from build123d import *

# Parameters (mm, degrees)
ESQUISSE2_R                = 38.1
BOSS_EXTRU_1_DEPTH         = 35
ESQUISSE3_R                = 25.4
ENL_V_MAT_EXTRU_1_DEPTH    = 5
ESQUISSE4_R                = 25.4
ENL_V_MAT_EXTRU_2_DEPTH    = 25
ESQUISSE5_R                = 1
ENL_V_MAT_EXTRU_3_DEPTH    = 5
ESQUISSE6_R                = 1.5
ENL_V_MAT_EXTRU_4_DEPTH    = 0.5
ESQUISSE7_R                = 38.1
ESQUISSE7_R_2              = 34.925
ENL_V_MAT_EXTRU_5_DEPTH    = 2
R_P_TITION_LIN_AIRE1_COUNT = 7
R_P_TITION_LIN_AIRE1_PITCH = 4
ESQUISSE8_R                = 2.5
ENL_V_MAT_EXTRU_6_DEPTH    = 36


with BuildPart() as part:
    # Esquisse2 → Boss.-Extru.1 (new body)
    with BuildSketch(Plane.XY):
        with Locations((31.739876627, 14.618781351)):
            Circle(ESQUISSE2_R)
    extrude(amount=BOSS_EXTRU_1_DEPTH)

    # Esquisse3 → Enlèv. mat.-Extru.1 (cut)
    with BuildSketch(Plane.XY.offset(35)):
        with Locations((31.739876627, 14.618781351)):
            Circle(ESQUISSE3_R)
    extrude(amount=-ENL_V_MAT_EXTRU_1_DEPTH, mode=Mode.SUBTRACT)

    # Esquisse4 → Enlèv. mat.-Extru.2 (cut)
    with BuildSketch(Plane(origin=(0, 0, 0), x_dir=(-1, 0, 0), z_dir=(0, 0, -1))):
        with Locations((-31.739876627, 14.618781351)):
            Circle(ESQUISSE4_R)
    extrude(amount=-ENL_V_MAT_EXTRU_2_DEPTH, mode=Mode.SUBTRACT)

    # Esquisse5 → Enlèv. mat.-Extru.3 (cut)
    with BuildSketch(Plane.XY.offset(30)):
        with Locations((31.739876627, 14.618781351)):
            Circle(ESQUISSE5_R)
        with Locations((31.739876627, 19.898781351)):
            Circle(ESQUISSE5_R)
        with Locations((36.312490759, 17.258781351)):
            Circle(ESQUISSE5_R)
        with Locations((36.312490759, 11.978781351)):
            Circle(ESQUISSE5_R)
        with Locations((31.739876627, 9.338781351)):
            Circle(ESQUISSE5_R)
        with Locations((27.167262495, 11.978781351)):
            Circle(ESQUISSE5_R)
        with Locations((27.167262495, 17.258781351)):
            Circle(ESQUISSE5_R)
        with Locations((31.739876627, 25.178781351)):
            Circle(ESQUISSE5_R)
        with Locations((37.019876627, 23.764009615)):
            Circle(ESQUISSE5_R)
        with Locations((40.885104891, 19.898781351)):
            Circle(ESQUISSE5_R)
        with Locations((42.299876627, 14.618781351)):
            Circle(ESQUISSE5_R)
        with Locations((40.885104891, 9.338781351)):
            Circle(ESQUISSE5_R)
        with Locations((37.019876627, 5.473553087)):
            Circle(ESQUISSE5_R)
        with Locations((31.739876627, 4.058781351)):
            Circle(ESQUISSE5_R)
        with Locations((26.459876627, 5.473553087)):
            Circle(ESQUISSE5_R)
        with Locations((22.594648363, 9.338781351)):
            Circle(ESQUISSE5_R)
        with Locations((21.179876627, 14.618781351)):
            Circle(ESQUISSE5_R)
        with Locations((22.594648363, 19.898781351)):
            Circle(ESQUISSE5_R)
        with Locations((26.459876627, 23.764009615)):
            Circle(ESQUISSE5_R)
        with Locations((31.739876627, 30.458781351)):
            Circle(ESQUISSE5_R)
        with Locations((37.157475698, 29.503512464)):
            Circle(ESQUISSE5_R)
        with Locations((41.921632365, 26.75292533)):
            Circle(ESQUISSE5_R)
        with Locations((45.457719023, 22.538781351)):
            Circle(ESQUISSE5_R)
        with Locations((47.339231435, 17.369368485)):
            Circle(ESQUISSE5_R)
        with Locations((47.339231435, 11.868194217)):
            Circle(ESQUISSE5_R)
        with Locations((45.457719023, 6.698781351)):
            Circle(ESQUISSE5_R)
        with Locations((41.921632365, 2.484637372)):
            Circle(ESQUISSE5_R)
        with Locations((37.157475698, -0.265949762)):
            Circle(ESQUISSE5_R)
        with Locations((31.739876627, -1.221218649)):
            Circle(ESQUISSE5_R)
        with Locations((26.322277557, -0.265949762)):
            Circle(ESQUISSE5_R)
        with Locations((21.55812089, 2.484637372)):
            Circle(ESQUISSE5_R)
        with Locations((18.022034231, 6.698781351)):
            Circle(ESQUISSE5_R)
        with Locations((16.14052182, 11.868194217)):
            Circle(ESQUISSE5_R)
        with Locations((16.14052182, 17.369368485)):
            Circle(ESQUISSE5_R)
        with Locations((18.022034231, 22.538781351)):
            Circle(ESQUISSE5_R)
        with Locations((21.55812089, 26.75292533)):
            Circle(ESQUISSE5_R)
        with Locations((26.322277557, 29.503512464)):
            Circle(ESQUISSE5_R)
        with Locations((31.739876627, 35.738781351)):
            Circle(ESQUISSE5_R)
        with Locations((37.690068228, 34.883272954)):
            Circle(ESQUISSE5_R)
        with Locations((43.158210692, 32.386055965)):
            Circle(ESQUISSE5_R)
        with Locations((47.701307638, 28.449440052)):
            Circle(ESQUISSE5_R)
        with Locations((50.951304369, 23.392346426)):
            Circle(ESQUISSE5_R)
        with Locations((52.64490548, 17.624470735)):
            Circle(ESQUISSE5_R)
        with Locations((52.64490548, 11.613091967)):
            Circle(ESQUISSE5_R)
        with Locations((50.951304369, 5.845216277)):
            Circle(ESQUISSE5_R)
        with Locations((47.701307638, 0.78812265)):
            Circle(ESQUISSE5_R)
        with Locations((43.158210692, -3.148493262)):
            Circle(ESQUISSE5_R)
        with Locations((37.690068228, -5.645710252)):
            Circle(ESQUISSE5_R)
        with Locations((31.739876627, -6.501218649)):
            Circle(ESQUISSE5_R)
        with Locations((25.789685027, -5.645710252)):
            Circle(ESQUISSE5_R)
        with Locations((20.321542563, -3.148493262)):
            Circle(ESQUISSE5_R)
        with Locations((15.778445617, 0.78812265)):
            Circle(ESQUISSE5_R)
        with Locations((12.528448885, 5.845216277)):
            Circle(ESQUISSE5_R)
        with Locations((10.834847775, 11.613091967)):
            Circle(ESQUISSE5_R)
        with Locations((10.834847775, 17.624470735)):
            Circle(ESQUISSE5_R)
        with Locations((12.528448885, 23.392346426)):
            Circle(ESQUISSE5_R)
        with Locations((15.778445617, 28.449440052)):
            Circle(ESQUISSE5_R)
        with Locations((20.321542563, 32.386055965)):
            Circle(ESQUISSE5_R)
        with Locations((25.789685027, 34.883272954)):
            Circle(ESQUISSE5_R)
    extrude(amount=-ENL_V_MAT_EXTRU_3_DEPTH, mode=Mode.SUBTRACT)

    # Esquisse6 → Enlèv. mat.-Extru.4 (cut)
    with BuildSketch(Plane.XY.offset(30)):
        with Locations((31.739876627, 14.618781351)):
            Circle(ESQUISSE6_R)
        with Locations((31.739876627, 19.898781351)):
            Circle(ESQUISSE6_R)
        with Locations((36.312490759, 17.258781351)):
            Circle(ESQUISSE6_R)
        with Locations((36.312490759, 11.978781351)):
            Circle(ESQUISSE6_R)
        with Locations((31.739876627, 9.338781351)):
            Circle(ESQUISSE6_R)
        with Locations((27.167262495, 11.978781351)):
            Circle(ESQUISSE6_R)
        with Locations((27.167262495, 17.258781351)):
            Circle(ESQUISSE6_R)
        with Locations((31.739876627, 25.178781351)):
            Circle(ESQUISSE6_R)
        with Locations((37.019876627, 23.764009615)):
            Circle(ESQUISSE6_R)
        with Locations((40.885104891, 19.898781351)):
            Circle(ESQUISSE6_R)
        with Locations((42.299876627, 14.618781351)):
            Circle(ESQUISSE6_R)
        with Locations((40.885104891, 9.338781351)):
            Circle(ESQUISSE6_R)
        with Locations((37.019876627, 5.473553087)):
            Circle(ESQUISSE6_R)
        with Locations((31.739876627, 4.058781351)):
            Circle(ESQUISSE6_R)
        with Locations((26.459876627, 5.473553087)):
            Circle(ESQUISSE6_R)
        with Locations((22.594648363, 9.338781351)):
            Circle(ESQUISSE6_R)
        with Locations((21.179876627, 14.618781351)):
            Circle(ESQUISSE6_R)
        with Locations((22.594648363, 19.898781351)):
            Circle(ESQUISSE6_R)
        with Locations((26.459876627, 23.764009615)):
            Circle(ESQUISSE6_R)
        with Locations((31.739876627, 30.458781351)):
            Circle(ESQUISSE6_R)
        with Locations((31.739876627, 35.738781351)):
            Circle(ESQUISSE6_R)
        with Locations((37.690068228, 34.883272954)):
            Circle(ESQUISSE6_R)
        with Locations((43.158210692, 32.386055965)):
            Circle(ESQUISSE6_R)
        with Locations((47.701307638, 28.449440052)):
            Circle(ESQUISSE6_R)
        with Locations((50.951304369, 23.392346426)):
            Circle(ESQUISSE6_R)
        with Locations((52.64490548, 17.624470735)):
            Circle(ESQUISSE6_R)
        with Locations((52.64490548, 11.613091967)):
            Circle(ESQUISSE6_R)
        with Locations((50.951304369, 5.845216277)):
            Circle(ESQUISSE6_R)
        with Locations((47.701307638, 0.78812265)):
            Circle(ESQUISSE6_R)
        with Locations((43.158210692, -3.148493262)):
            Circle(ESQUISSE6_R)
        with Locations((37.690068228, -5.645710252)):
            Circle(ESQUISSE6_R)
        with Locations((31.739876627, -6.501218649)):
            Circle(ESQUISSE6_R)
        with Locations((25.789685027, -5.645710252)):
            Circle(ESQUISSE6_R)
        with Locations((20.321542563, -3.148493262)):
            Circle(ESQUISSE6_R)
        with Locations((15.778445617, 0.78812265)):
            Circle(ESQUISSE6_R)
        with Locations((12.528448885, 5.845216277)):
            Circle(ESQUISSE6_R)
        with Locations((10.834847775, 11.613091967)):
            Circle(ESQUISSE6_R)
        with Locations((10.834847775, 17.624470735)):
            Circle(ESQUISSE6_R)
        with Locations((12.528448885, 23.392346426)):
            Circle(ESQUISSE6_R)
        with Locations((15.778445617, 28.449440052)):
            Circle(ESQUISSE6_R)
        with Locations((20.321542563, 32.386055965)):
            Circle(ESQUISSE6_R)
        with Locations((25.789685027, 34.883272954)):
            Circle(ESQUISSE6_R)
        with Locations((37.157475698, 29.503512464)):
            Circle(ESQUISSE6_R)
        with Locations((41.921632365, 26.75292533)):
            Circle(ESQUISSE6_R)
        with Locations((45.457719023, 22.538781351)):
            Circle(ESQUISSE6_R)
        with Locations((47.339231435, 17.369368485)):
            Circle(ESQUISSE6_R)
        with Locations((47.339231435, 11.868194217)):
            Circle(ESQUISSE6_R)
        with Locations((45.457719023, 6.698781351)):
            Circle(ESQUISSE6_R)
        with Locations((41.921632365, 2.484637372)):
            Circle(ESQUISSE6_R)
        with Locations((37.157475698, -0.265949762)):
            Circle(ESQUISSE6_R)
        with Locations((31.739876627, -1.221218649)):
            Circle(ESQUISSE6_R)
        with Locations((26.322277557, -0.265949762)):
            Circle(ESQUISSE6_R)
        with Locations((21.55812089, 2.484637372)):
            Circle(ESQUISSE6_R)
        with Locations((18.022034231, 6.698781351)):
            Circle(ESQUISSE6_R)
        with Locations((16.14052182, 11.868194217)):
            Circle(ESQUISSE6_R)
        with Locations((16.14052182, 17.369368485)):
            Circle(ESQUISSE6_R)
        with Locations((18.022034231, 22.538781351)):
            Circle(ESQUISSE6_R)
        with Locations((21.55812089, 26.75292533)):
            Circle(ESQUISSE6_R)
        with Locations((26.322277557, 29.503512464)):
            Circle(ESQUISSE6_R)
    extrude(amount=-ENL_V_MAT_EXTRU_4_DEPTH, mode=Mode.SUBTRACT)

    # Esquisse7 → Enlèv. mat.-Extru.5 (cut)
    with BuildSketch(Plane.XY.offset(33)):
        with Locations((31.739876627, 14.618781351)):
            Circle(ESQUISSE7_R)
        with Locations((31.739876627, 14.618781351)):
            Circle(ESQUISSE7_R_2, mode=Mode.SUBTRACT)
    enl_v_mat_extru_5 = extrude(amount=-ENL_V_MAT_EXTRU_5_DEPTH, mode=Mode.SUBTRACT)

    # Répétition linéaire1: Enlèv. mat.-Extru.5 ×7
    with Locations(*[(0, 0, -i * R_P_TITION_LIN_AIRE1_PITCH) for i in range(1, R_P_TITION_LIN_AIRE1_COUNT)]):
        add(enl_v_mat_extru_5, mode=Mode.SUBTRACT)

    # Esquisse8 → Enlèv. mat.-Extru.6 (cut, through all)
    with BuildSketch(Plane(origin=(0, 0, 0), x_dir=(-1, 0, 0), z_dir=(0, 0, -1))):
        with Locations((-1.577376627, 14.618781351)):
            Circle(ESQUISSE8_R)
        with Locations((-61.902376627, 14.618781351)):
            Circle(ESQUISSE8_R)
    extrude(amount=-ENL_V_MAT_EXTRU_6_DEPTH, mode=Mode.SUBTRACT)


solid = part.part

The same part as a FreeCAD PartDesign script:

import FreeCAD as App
import Part
import Sketcher

V = App.Vector
Q = App.Units.Quantity

doc = App.newDocument("Part")
body = doc.addObject("PartDesign::Body", "Body")

sketch1 = doc.addObject("Sketcher::SketchObject", "Sketch")
body.addObject(sketch1)
sketch1.AttachmentSupport = (doc.XY_Plane, [""])
sketch1.MapMode = "FlatFace"
sketch1.addGeometry(Part.Circle(V(31.739877, 14.618781, 0), V(0, 0, 1), 38.1), False)
sketch1.addConstraint([
    Sketcher.Constraint("Diameter", 0, Q("76.2 mm")),
    Sketcher.Constraint("DistanceY", -1, 1, 0, 3, Q("14.618781 mm")),
    Sketcher.Constraint("DistanceX", -1, 1, 0, 3, Q("31.739877 mm")),
])
pad1 = doc.addObject("PartDesign::Pad", "Pad")
body.addObject(pad1)
pad1.Profile = sketch1
pad1.Length = 35

sketch2 = doc.addObject("Sketcher::SketchObject", "Sketch001")
body.addObject(sketch2)
sketch2.AttachmentSupport = (doc.XY_Plane, [""])
sketch2.MapMode = "FlatFace"
sketch2.AttachmentOffset = App.Placement(V(0, 0, 35), App.Rotation())
sketch2.addGeometry(Part.Circle(V(31.739877, 14.618781, 0), V(0, 0, 1), 25.4), False)
sketch2.addConstraint([
    Sketcher.Constraint("Diameter", 0, Q("50.8 mm")),
    Sketcher.Constraint("DistanceY", -1, 1, 0, 3, Q("14.618781 mm")),
    Sketcher.Constraint("DistanceX", -1, 1, 0, 3, Q("31.739877 mm")),
])
pocket1 = doc.addObject("PartDesign::Pocket", "Pocket")
body.addObject(pocket1)
pocket1.Profile = sketch2
pocket1.Length = 5

sketch3 = doc.addObject("Sketcher::SketchObject", "Sketch002")
body.addObject(sketch3)
sketch3.AttachmentSupport = (doc.XY_Plane, [""])
sketch3.MapMode = "FlatFace"
sketch3.addGeometry(Part.Circle(V(31.739877, 14.618781, 0), V(0, 0, 1), 25.4), False)
sketch3.addConstraint([
    Sketcher.Constraint("Diameter", 0, Q("50.8 mm")),
    Sketcher.Constraint("DistanceY", -1, 1, 0, 3, Q("14.618781 mm")),
    Sketcher.Constraint("DistanceX", -1, 1, 0, 3, Q("31.739877 mm")),
])
pocket2 = doc.addObject("PartDesign::Pocket", "Pocket001")
body.addObject(pocket2)
pocket2.Profile = sketch3
pocket2.Length = 25
pocket2.Reversed = True

sketch4 = doc.addObject("Sketcher::SketchObject", "Sketch003")
body.addObject(sketch4)
sketch4.AttachmentSupport = (doc.XY_Plane, [""])
sketch4.MapMode = "FlatFace"
sketch4.AttachmentOffset = App.Placement(V(0, 0, 30), App.Rotation())
sketch4.addGeometry([
    Part.Circle(V(31.739877, 14.618781, 0), V(0, 0, 1), 1),
    Part.Circle(V(31.739877, 19.898781, 0), V(0, 0, 1), 1),
    Part.Circle(V(36.312491, 17.258781, 0), V(0, 0, 1), 1),
    Part.Circle(V(36.312491, 11.978781, 0), V(0, 0, 1), 1),
    Part.Circle(V(31.739877, 9.338781, 0), V(0, 0, 1), 1),
    Part.Circle(V(27.167262, 11.978781, 0), V(0, 0, 1), 1),
    Part.Circle(V(27.167262, 17.258781, 0), V(0, 0, 1), 1),
    Part.Circle(V(31.739877, 25.178781, 0), V(0, 0, 1), 1),
    Part.Circle(V(37.019877, 23.76401, 0), V(0, 0, 1), 1),
    Part.Circle(V(40.885105, 19.898781, 0), V(0, 0, 1), 1),
    Part.Circle(V(42.299877, 14.618781, 0), V(0, 0, 1), 1),
    Part.Circle(V(40.885105, 9.338781, 0), V(0, 0, 1), 1),
    Part.Circle(V(37.019877, 5.473553, 0), V(0, 0, 1), 1),
    Part.Circle(V(31.739877, 4.058781, 0), V(0, 0, 1), 1),
    Part.Circle(V(26.459877, 5.473553, 0), V(0, 0, 1), 1),
    Part.Circle(V(22.594648, 9.338781, 0), V(0, 0, 1), 1),
    Part.Circle(V(21.179877, 14.618781, 0), V(0, 0, 1), 1),
    Part.Circle(V(22.594648, 19.898781, 0), V(0, 0, 1), 1),
    Part.Circle(V(26.459877, 23.76401, 0), V(0, 0, 1), 1),
    Part.Circle(V(31.739877, 30.458781, 0), V(0, 0, 1), 1),
    Part.Circle(V(37.157476, 29.503512, 0), V(0, 0, 1), 1),
    Part.Circle(V(41.921632, 26.752925, 0), V(0, 0, 1), 1),
    Part.Circle(V(45.457719, 22.538781, 0), V(0, 0, 1), 1),
    Part.Circle(V(47.339231, 17.369368, 0), V(0, 0, 1), 1),
    Part.Circle(V(47.339231, 11.868194, 0), V(0, 0, 1), 1),
    Part.Circle(V(45.457719, 6.698781, 0), V(0, 0, 1), 1),
    Part.Circle(V(41.921632, 2.484637, 0), V(0, 0, 1), 1),
    Part.Circle(V(37.157476, -0.26595, 0), V(0, 0, 1), 1),
    Part.Circle(V(31.739877, -1.221219, 0), V(0, 0, 1), 1),
    Part.Circle(V(26.322278, -0.26595, 0), V(0, 0, 1), 1),
    Part.Circle(V(21.558121, 2.484637, 0), V(0, 0, 1), 1),
    Part.Circle(V(18.022034, 6.698781, 0), V(0, 0, 1), 1),
    Part.Circle(V(16.140522, 11.868194, 0), V(0, 0, 1), 1),
    Part.Circle(V(16.140522, 17.369368, 0), V(0, 0, 1), 1),
    Part.Circle(V(18.022034, 22.538781, 0), V(0, 0, 1), 1),
    Part.Circle(V(21.558121, 26.752925, 0), V(0, 0, 1), 1),
    Part.Circle(V(26.322278, 29.503512, 0), V(0, 0, 1), 1),
    Part.Circle(V(31.739877, 35.738781, 0), V(0, 0, 1), 1),
    Part.Circle(V(37.690068, 34.883273, 0), V(0, 0, 1), 1),
    Part.Circle(V(43.158211, 32.386056, 0), V(0, 0, 1), 1),
    Part.Circle(V(47.701308, 28.44944, 0), V(0, 0, 1), 1),
    Part.Circle(V(50.951304, 23.392346, 0), V(0, 0, 1), 1),
    Part.Circle(V(52.644905, 17.624471, 0), V(0, 0, 1), 1),
    Part.Circle(V(52.644905, 11.613092, 0), V(0, 0, 1), 1),
    Part.Circle(V(50.951304, 5.845216, 0), V(0, 0, 1), 1),
    Part.Circle(V(47.701308, 0.788123, 0), V(0, 0, 1), 1),
    Part.Circle(V(43.158211, -3.148493, 0), V(0, 0, 1), 1),
    Part.Circle(V(37.690068, -5.64571, 0), V(0, 0, 1), 1),
    Part.Circle(V(31.739877, -6.501219, 0), V(0, 0, 1), 1),
    Part.Circle(V(25.789685, -5.64571, 0), V(0, 0, 1), 1),
    Part.Circle(V(20.321543, -3.148493, 0), V(0, 0, 1), 1),
    Part.Circle(V(15.778446, 0.788123, 0), V(0, 0, 1), 1),
    Part.Circle(V(12.528449, 5.845216, 0), V(0, 0, 1), 1),
    Part.Circle(V(10.834848, 11.613092, 0), V(0, 0, 1), 1),
    Part.Circle(V(10.834848, 17.624471, 0), V(0, 0, 1), 1),
    Part.Circle(V(12.528449, 23.392346, 0), V(0, 0, 1), 1),
    Part.Circle(V(15.778446, 28.44944, 0), V(0, 0, 1), 1),
    Part.Circle(V(20.321543, 32.386056, 0), V(0, 0, 1), 1),
    Part.Circle(V(25.789685, 34.883273, 0), V(0, 0, 1), 1),
], False)
sketch4.addConstraint([
    Sketcher.Constraint("Equal", 0, 1),
    Sketcher.Constraint("Equal", 1, 2),
    Sketcher.Constraint("Equal", 2, 3),
    Sketcher.Constraint("Equal", 3, 4),
    Sketcher.Constraint("Equal", 4, 5),
    Sketcher.Constraint("Equal", 5, 6),
    Sketcher.Constraint("Equal", 6, 7),
    Sketcher.Constraint("Equal", 7, 8),
    Sketcher.Constraint("Equal", 8, 9),
    Sketcher.Constraint("Equal", 9, 10),
    Sketcher.Constraint("Equal", 10, 11),
    Sketcher.Constraint("Equal", 11, 12),
    Sketcher.Constraint("Equal", 12, 13),
    Sketcher.Constraint("Equal", 13, 14),
    Sketcher.Constraint("Equal", 14, 15),
    Sketcher.Constraint("Equal", 15, 16),
    Sketcher.Constraint("Equal", 16, 17),
    Sketcher.Constraint("Equal", 17, 18),
    Sketcher.Constraint("Equal", 18, 19),
    Sketcher.Constraint("Equal", 19, 20),
    Sketcher.Constraint("Equal", 20, 21),
    Sketcher.Constraint("Equal", 21, 22),
    Sketcher.Constraint("Equal", 22, 23),
    Sketcher.Constraint("Equal", 23, 24),
    Sketcher.Constraint("Equal", 24, 25),
    Sketcher.Constraint("Equal", 25, 26),
    Sketcher.Constraint("Equal", 26, 27),
    Sketcher.Constraint("Equal", 27, 28),
    Sketcher.Constraint("Equal", 28, 29),
    Sketcher.Constraint("Equal", 29, 30),
    Sketcher.Constraint("Equal", 30, 31),
    Sketcher.Constraint("Equal", 31, 32),
    Sketcher.Constraint("Equal", 32, 33),
    Sketcher.Constraint("Equal", 33, 34),
    Sketcher.Constraint("Equal", 34, 35),
    Sketcher.Constraint("Equal", 35, 36),
    Sketcher.Constraint("Equal", 36, 37),
    Sketcher.Constraint("Equal", 37, 38),
    Sketcher.Constraint("Equal", 38, 39),
    Sketcher.Constraint("Equal", 39, 40),
    Sketcher.Constraint("Equal", 40, 41),
    Sketcher.Constraint("Equal", 41, 42),
    Sketcher.Constraint("Equal", 42, 43),
    Sketcher.Constraint("Equal", 43, 44),
    Sketcher.Constraint("Equal", 44, 45),
    Sketcher.Constraint("Equal", 45, 46),
    Sketcher.Constraint("Equal", 46, 47),
    Sketcher.Constraint("Equal", 47, 48),
    Sketcher.Constraint("Equal", 48, 49),
    Sketcher.Constraint("Equal", 49, 50),
    Sketcher.Constraint("Equal", 50, 51),
    Sketcher.Constraint("Equal", 51, 52),
    Sketcher.Constraint("Equal", 52, 53),
    Sketcher.Constraint("Equal", 53, 54),
    Sketcher.Constraint("Equal", 54, 55),
    Sketcher.Constraint("Equal", 55, 56),
    Sketcher.Constraint("Equal", 56, 57),
    Sketcher.Constraint("Equal", 57, 58),
    Sketcher.Constraint("Horizontal", 3, 3, 5, 3),
    Sketcher.Constraint("Horizontal", 2, 3, 6, 3),
    Sketcher.Constraint("Horizontal", 1, 3, 9, 3),
    Sketcher.Constraint("Horizontal", 0, 3, 10, 3),
    Sketcher.Constraint("Horizontal", 4, 3, 11, 3),
    Sketcher.Constraint("Horizontal", 12, 3, 14, 3),
    Sketcher.Constraint("Horizontal", 11, 3, 15, 3),
    Sketcher.Constraint("Horizontal", 10, 3, 16, 3),
    Sketcher.Constraint("Horizontal", 9, 3, 17, 3),
    Sketcher.Constraint("Horizontal", 8, 3, 18, 3),
    Sketcher.Constraint("Horizontal", 27, 3, 29, 3),
    Sketcher.Constraint("Horizontal", 26, 3, 30, 3),
    Sketcher.Constraint("Horizontal", 25, 3, 31, 3),
    Sketcher.Constraint("Horizontal", 24, 3, 32, 3),
    Sketcher.Constraint("Horizontal", 23, 3, 33, 3),
    Sketcher.Constraint("Horizontal", 22, 3, 34, 3),
    Sketcher.Constraint("Horizontal", 21, 3, 35, 3),
    Sketcher.Constraint("Horizontal", 20, 3, 36, 3),
    Sketcher.Constraint("Horizontal", 47, 3, 49, 3),
    Sketcher.Constraint("Horizontal", 46, 3, 50, 3),
    Sketcher.Constraint("Horizontal", 45, 3, 51, 3),
    Sketcher.Constraint("Horizontal", 44, 3, 52, 3),
    Sketcher.Constraint("Horizontal", 43, 3, 53, 3),
    Sketcher.Constraint("Horizontal", 42, 3, 54, 3),
    Sketcher.Constraint("Horizontal", 41, 3, 55, 3),
    Sketcher.Constraint("Horizontal", 40, 3, 56, 3),
    Sketcher.Constraint("Horizontal", 39, 3, 57, 3),
    Sketcher.Constraint("Horizontal", 38, 3, 58, 3),
    Sketcher.Constraint("Vertical", 0, 3, 1, 3),
    Sketcher.Constraint("Vertical", 2, 3, 3, 3),
    Sketcher.Constraint("Vertical", 1, 3, 4, 3),
    Sketcher.Constraint("Vertical", 5, 3, 6, 3),
    Sketcher.Constraint("Vertical", 4, 3, 7, 3),
    Sketcher.Constraint("Vertical", 9, 3, 11, 3),
    Sketcher.Constraint("Vertical", 8, 3, 12, 3),
    Sketcher.Constraint("Vertical", 7, 3, 13, 3),
    Sketcher.Constraint("Vertical", 15, 3, 17, 3),
    Sketcher.Constraint("Vertical", 14, 3, 18, 3),
    Sketcher.Constraint("Vertical", 13, 3, 19, 3),
    Sketcher.Constraint("Vertical", 23, 3, 24, 3),
    Sketcher.Constraint("Vertical", 22, 3, 25, 3),
    Sketcher.Constraint("Vertical", 21, 3, 26, 3),
    Sketcher.Constraint("Vertical", 20, 3, 27, 3),
    Sketcher.Constraint("Vertical", 19, 3, 28, 3),
    Sketcher.Constraint("Vertical", 32, 3, 33, 3),
    Sketcher.Constraint("Vertical", 31, 3, 34, 3),
    Sketcher.Constraint("Vertical", 30, 3, 35, 3),
    Sketcher.Constraint("Vertical", 29, 3, 36, 3),
    Sketcher.Constraint("Vertical", 28, 3, 37, 3),
    Sketcher.Constraint("Vertical", 42, 3, 43, 3),
    Sketcher.Constraint("Vertical", 41, 3, 44, 3),
    Sketcher.Constraint("Vertical", 40, 3, 45, 3),
    Sketcher.Constraint("Vertical", 39, 3, 46, 3),
    Sketcher.Constraint("Vertical", 38, 3, 47, 3),
    Sketcher.Constraint("Vertical", 37, 3, 48, 3),
    Sketcher.Constraint("Vertical", 53, 3, 54, 3),
    Sketcher.Constraint("Vertical", 52, 3, 55, 3),
    Sketcher.Constraint("Vertical", 51, 3, 56, 3),
    Sketcher.Constraint("Vertical", 50, 3, 57, 3),
    Sketcher.Constraint("Vertical", 49, 3, 58, 3),
    Sketcher.Constraint("Diameter", 0, Q("2 mm")),
    Sketcher.Constraint("DistanceY", 3, 3, 7, 3, Q("13.2 mm")),
    Sketcher.Constraint("DistanceY", 2, 3, 19, 3, Q("13.2 mm")),
    Sketcher.Constraint("DistanceY", 0, 3, 1, 3, Q("5.28 mm")),
    Sketcher.Constraint("DistanceY", 0, 3, 2, 3, Q("2.64 mm")),
    Sketcher.Constraint("DistanceY", 3, 3, 2, 3, Q("5.28 mm")),
    Sketcher.Constraint("DistanceY", 4, 3, 0, 3, Q("5.28 mm")),
    Sketcher.Constraint("DistanceX", 7, 3, 8, 3, Q("5.28 mm")),
    Sketcher.Constraint("DistanceX", 0, 3, 10, 3, Q("10.56 mm")),
    Sketcher.Constraint("DistanceY", 13, 3, 4, 3, Q("5.28 mm")),
    Sketcher.Constraint("DistanceX", 14, 3, 13, 3, Q("5.28 mm")),
    Sketcher.Constraint("DistanceX", 16, 3, 0, 3, Q("10.56 mm")),
    Sketcher.Constraint("DistanceY", 9, 3, 22, 3, Q("2.64 mm")),
    Sketcher.Constraint("DistanceY", 25, 3, 11, 3, Q("2.64 mm")),
    Sketcher.Constraint("DistanceY", 28, 3, 13, 3, Q("5.28 mm")),
    Sketcher.Constraint("DistanceY", 19, 3, 37, 3, Q("5.28 mm")),
    Sketcher.Constraint("DistanceY", 48, 3, 28, 3, Q("5.28 mm")),
    Sketcher.Constraint("DistanceX", 19, 3, 20, 3, Q("5.417599 mm")),
    Sketcher.Constraint("DistanceX", 21, 3, 23, 3, Q("5.417599 mm")),
    Sketcher.Constraint("DistanceX", 29, 3, 28, 3, Q("5.417599 mm")),
    Sketcher.Constraint("DistanceX", 32, 3, 30, 3, Q("5.417599 mm")),
    Sketcher.Constraint("DistanceX", 9, 3, 41, 3, Q("10.066199 mm")),
    Sketcher.Constraint("DistanceX", 41, 3, 42, 3, Q("1.693601 mm")),
    Sketcher.Constraint("DistanceX", 52, 3, 15, 3, Q("10.066199 mm")),
    Sketcher.Constraint("DistanceX", 53, 3, 52, 3, Q("1.693601 mm")),
    Sketcher.Constraint("DistanceY", -1, 1, 0, 3, Q("14.618781 mm")),
    Sketcher.Constraint("DistanceX", -1, 1, 2, 3, Q("36.312491 mm")),
    Sketcher.Constraint("DistanceY", -1, 1, 8, 3, Q("23.76401 mm")),
    Sketcher.Constraint("DistanceX", -1, 1, 15, 3, Q("22.594648 mm")),
    Sketcher.Constraint("DistanceX", -1, 1, 22, 3, Q("45.457719 mm")),
    Sketcher.Constraint("DistanceX", -1, 1, 23, 3, Q("47.339231 mm")),
    Sketcher.Constraint("DistanceY", -1, 1, 23, 3, Q("17.369368 mm")),
    Sketcher.Constraint("DistanceY", 27, 3, -1, 1, Q("0.26595 mm")),
    Sketcher.Constraint("DistanceX", -1, 1, 30, 3, Q("21.558121 mm")),
    Sketcher.Constraint("DistanceX", -1, 1, 38, 3, Q("37.690068 mm")),
    Sketcher.Constraint("DistanceX", -1, 1, 39, 3, Q("43.158211 mm")),
    Sketcher.Constraint("DistanceY", -1, 1, 40, 3, Q("28.44944 mm")),
    Sketcher.Constraint("DistanceY", -1, 1, 42, 3, Q("17.624471 mm")),
    Sketcher.Constraint("DistanceY", -1, 1, 43, 3, Q("11.613092 mm")),
    Sketcher.Constraint("DistanceY", 47, 3, -1, 1, Q("5.64571 mm")),
    Sketcher.Constraint("DistanceX", 5, 3, 3, 3, Q("9.145228 mm")),
    Sketcher.Constraint("DistanceX", 8, 3, 9, 3, Q("3.865228 mm")),
    Sketcher.Constraint("DistanceY", 12, 3, 11, 3, Q("3.865228 mm")),
    Sketcher.Constraint("DistanceX", 15, 3, 14, 3, Q("3.865228 mm")),
    Sketcher.Constraint("DistanceY", 20, 3, 19, 3, Q("0.955269 mm")),
    Sketcher.Constraint("DistanceX", 31, 3, 5, 3, Q("9.145228 mm")),
    Sketcher.Constraint("DistanceY", 20, 3, 38, 3, Q("5.37976 mm")),
    Sketcher.Constraint("DistanceY", 21, 3, 39, 3, Q("5.633131 mm")),
    Sketcher.Constraint("DistanceX", 22, 3, 40, 3, Q("2.243589 mm")),
    Sketcher.Constraint("DistanceY", 41, 3, 21, 3, Q("3.360579 mm")),
    Sketcher.Constraint("DistanceY", 26, 3, 44, 3, Q("3.360579 mm")),
    Sketcher.Constraint("DistanceY", 45, 3, 25, 3, Q("5.910659 mm")),
    Sketcher.Constraint("DistanceY", 46, 3, 26, 3, Q("5.633131 mm")),
    Sketcher.Constraint("DistanceX", 49, 3, 48, 3, Q("5.950192 mm")),
    Sketcher.Constraint("DistanceX", 50, 3, 30, 3, Q("1.236578 mm")),
    Sketcher.Constraint("DistanceX", 51, 3, 31, 3, Q("2.243589 mm")),
    Sketcher.Constraint("DistanceY", -1, 1, 21, 3, Q("26.752925 mm")),
    Sketcher.Constraint("DistanceY", -1, 1, 24, 3, Q("11.868194 mm")),
    Sketcher.Constraint("DistanceY", -1, 1, 26, 3, Q("2.484637 mm")),
])
pocket3 = doc.addObject("PartDesign::Pocket", "Pocket002")
body.addObject(pocket3)
pocket3.Profile = sketch4
pocket3.Length = 5

sketch5 = doc.addObject("Sketcher::SketchObject", "Sketch004")
body.addObject(sketch5)
sketch5.AttachmentSupport = (doc.XY_Plane, [""])
sketch5.MapMode = "FlatFace"
sketch5.AttachmentOffset = App.Placement(V(0, 0, 30), App.Rotation())
sketch5.addGeometry([
    Part.Circle(V(31.739877, 14.618781, 0), V(0, 0, 1), 1.5),
    Part.Circle(V(31.739877, 19.898781, 0), V(0, 0, 1), 1.5),
    Part.Circle(V(36.312491, 17.258781, 0), V(0, 0, 1), 1.5),
    Part.Circle(V(36.312491, 11.978781, 0), V(0, 0, 1), 1.5),
    Part.Circle(V(31.739877, 9.338781, 0), V(0, 0, 1), 1.5),
    Part.Circle(V(27.167262, 11.978781, 0), V(0, 0, 1), 1.5),
    Part.Circle(V(27.167262, 17.258781, 0), V(0, 0, 1), 1.5),
    Part.Circle(V(31.739877, 25.178781, 0), V(0, 0, 1), 1.5),
    Part.Circle(V(37.019877, 23.76401, 0), V(0, 0, 1), 1.5),
    Part.Circle(V(40.885105, 19.898781, 0), V(0, 0, 1), 1.5),
    Part.Circle(V(42.299877, 14.618781, 0), V(0, 0, 1), 1.5),
    Part.Circle(V(40.885105, 9.338781, 0), V(0, 0, 1), 1.5),
    Part.Circle(V(37.019877, 5.473553, 0), V(0, 0, 1), 1.5),
    Part.Circle(V(31.739877, 4.058781, 0), V(0, 0, 1), 1.5),
    Part.Circle(V(26.459877, 5.473553, 0), V(0, 0, 1), 1.5),
    Part.Circle(V(22.594648, 9.338781, 0), V(0, 0, 1), 1.5),
    Part.Circle(V(21.179877, 14.618781, 0), V(0, 0, 1), 1.5),
    Part.Circle(V(22.594648, 19.898781, 0), V(0, 0, 1), 1.5),
    Part.Circle(V(26.459877, 23.76401, 0), V(0, 0, 1), 1.5),
    Part.Circle(V(31.739877, 30.458781, 0), V(0, 0, 1), 1.5),
    Part.Circle(V(31.739877, 35.738781, 0), V(0, 0, 1), 1.5),
    Part.Circle(V(37.690068, 34.883273, 0), V(0, 0, 1), 1.5),
    Part.Circle(V(43.158211, 32.386056, 0), V(0, 0, 1), 1.5),
    Part.Circle(V(47.701308, 28.44944, 0), V(0, 0, 1), 1.5),
    Part.Circle(V(50.951304, 23.392346, 0), V(0, 0, 1), 1.5),
    Part.Circle(V(52.644905, 17.624471, 0), V(0, 0, 1), 1.5),
    Part.Circle(V(52.644905, 11.613092, 0), V(0, 0, 1), 1.5),
    Part.Circle(V(50.951304, 5.845216, 0), V(0, 0, 1), 1.5),
    Part.Circle(V(47.701308, 0.788123, 0), V(0, 0, 1), 1.5),
    Part.Circle(V(43.158211, -3.148493, 0), V(0, 0, 1), 1.5),
    Part.Circle(V(37.690068, -5.64571, 0), V(0, 0, 1), 1.5),
    Part.Circle(V(31.739877, -6.501219, 0), V(0, 0, 1), 1.5),
    Part.Circle(V(25.789685, -5.64571, 0), V(0, 0, 1), 1.5),
    Part.Circle(V(20.321543, -3.148493, 0), V(0, 0, 1), 1.5),
    Part.Circle(V(15.778446, 0.788123, 0), V(0, 0, 1), 1.5),
    Part.Circle(V(12.528449, 5.845216, 0), V(0, 0, 1), 1.5),
    Part.Circle(V(10.834848, 11.613092, 0), V(0, 0, 1), 1.5),
    Part.Circle(V(10.834848, 17.624471, 0), V(0, 0, 1), 1.5),
    Part.Circle(V(12.528449, 23.392346, 0), V(0, 0, 1), 1.5),
    Part.Circle(V(15.778446, 28.44944, 0), V(0, 0, 1), 1.5),
    Part.Circle(V(20.321543, 32.386056, 0), V(0, 0, 1), 1.5),
    Part.Circle(V(25.789685, 34.883273, 0), V(0, 0, 1), 1.5),
    Part.Circle(V(37.157476, 29.503512, 0), V(0, 0, 1), 1.5),
    Part.Circle(V(41.921632, 26.752925, 0), V(0, 0, 1), 1.5),
    Part.Circle(V(45.457719, 22.538781, 0), V(0, 0, 1), 1.5),
    Part.Circle(V(47.339231, 17.369368, 0), V(0, 0, 1), 1.5),
    Part.Circle(V(47.339231, 11.868194, 0), V(0, 0, 1), 1.5),
    Part.Circle(V(45.457719, 6.698781, 0), V(0, 0, 1), 1.5),
    Part.Circle(V(41.921632, 2.484637, 0), V(0, 0, 1), 1.5),
    Part.Circle(V(37.157476, -0.26595, 0), V(0, 0, 1), 1.5),
    Part.Circle(V(31.739877, -1.221219, 0), V(0, 0, 1), 1.5),
    Part.Circle(V(26.322278, -0.26595, 0), V(0, 0, 1), 1.5),
    Part.Circle(V(21.558121, 2.484637, 0), V(0, 0, 1), 1.5),
    Part.Circle(V(18.022034, 6.698781, 0), V(0, 0, 1), 1.5),
    Part.Circle(V(16.140522, 11.868194, 0), V(0, 0, 1), 1.5),
    Part.Circle(V(16.140522, 17.369368, 0), V(0, 0, 1), 1.5),
    Part.Circle(V(18.022034, 22.538781, 0), V(0, 0, 1), 1.5),
    Part.Circle(V(21.558121, 26.752925, 0), V(0, 0, 1), 1.5),
    Part.Circle(V(26.322278, 29.503512, 0), V(0, 0, 1), 1.5),
], False)
sketch5.addConstraint([
    Sketcher.Constraint("Equal", 0, 1),
    Sketcher.Constraint("Equal", 1, 2),
    Sketcher.Constraint("Equal", 2, 3),
    Sketcher.Constraint("Equal", 3, 4),
    Sketcher.Constraint("Equal", 4, 5),
    Sketcher.Constraint("Equal", 5, 6),
    Sketcher.Constraint("Equal", 6, 7),
    Sketcher.Constraint("Equal", 7, 8),
    Sketcher.Constraint("Equal", 8, 9),
    Sketcher.Constraint("Equal", 9, 10),
    Sketcher.Constraint("Equal", 10, 11),
    Sketcher.Constraint("Equal", 11, 12),
    Sketcher.Constraint("Equal", 12, 13),
    Sketcher.Constraint("Equal", 13, 14),
    Sketcher.Constraint("Equal", 14, 15),
    Sketcher.Constraint("Equal", 15, 16),
    Sketcher.Constraint("Equal", 16, 17),
    Sketcher.Constraint("Equal", 17, 18),
    Sketcher.Constraint("Equal", 18, 19),
    Sketcher.Constraint("Equal", 19, 20),
    Sketcher.Constraint("Equal", 20, 21),
    Sketcher.Constraint("Equal", 21, 22),
    Sketcher.Constraint("Equal", 22, 23),
    Sketcher.Constraint("Equal", 23, 24),
    Sketcher.Constraint("Equal", 24, 25),
    Sketcher.Constraint("Equal", 25, 26),
    Sketcher.Constraint("Equal", 26, 27),
    Sketcher.Constraint("Equal", 27, 28),
    Sketcher.Constraint("Equal", 28, 29),
    Sketcher.Constraint("Equal", 29, 30),
    Sketcher.Constraint("Equal", 30, 31),
    Sketcher.Constraint("Equal", 31, 32),
    Sketcher.Constraint("Equal", 32, 33),
    Sketcher.Constraint("Equal", 33, 34),
    Sketcher.Constraint("Equal", 34, 35),
    Sketcher.Constraint("Equal", 35, 36),
    Sketcher.Constraint("Equal", 36, 37),
    Sketcher.Constraint("Equal", 37, 38),
    Sketcher.Constraint("Equal", 38, 39),
    Sketcher.Constraint("Equal", 39, 40),
    Sketcher.Constraint("Equal", 40, 41),
    Sketcher.Constraint("Equal", 41, 42),
    Sketcher.Constraint("Equal", 42, 43),
    Sketcher.Constraint("Equal", 43, 44),
    Sketcher.Constraint("Equal", 44, 45),
    Sketcher.Constraint("Equal", 45, 46),
    Sketcher.Constraint("Equal", 46, 47),
    Sketcher.Constraint("Equal", 47, 48),
    Sketcher.Constraint("Equal", 48, 49),
    Sketcher.Constraint("Equal", 49, 50),
    Sketcher.Constraint("Equal", 50, 51),
    Sketcher.Constraint("Equal", 51, 52),
    Sketcher.Constraint("Equal", 52, 53),
    Sketcher.Constraint("Equal", 53, 54),
    Sketcher.Constraint("Equal", 54, 55),
    Sketcher.Constraint("Equal", 55, 56),
    Sketcher.Constraint("Equal", 56, 57),
    Sketcher.Constraint("Equal", 57, 58),
    Sketcher.Constraint("Horizontal", 3, 3, 5, 3),
    Sketcher.Constraint("Horizontal", 2, 3, 6, 3),
    Sketcher.Constraint("Horizontal", 1, 3, 9, 3),
    Sketcher.Constraint("Horizontal", 0, 3, 10, 3),
    Sketcher.Constraint("Horizontal", 4, 3, 11, 3),
    Sketcher.Constraint("Horizontal", 12, 3, 14, 3),
    Sketcher.Constraint("Horizontal", 11, 3, 15, 3),
    Sketcher.Constraint("Horizontal", 10, 3, 16, 3),
    Sketcher.Constraint("Horizontal", 9, 3, 17, 3),
    Sketcher.Constraint("Horizontal", 8, 3, 18, 3),
    Sketcher.Constraint("Horizontal", 30, 3, 32, 3),
    Sketcher.Constraint("Horizontal", 29, 3, 33, 3),
    Sketcher.Constraint("Horizontal", 28, 3, 34, 3),
    Sketcher.Constraint("Horizontal", 27, 3, 35, 3),
    Sketcher.Constraint("Horizontal", 26, 3, 36, 3),
    Sketcher.Constraint("Horizontal", 25, 3, 37, 3),
    Sketcher.Constraint("Horizontal", 24, 3, 38, 3),
    Sketcher.Constraint("Horizontal", 23, 3, 39, 3),
    Sketcher.Constraint("Horizontal", 22, 3, 40, 3),
    Sketcher.Constraint("Horizontal", 21, 3, 41, 3),
    Sketcher.Constraint("Horizontal", 49, 3, 51, 3),
    Sketcher.Constraint("Horizontal", 48, 3, 52, 3),
    Sketcher.Constraint("Horizontal", 47, 3, 53, 3),
    Sketcher.Constraint("Horizontal", 46, 3, 54, 3),
    Sketcher.Constraint("Horizontal", 45, 3, 55, 3),
    Sketcher.Constraint("Horizontal", 44, 3, 56, 3),
    Sketcher.Constraint("Horizontal", 43, 3, 57, 3),
    Sketcher.Constraint("Horizontal", 42, 3, 58, 3),
    Sketcher.Constraint("Vertical", 0, 3, 1, 3),
    Sketcher.Constraint("Vertical", 2, 3, 3, 3),
    Sketcher.Constraint("Vertical", 1, 3, 4, 3),
    Sketcher.Constraint("Vertical", 5, 3, 6, 3),
    Sketcher.Constraint("Vertical", 4, 3, 7, 3),
    Sketcher.Constraint("Vertical", 9, 3, 11, 3),
    Sketcher.Constraint("Vertical", 8, 3, 12, 3),
    Sketcher.Constraint("Vertical", 7, 3, 13, 3),
    Sketcher.Constraint("Vertical", 15, 3, 17, 3),
    Sketcher.Constraint("Vertical", 14, 3, 18, 3),
    Sketcher.Constraint("Vertical", 13, 3, 19, 3),
    Sketcher.Constraint("Vertical", 19, 3, 20, 3),
    Sketcher.Constraint("Vertical", 25, 3, 26, 3),
    Sketcher.Constraint("Vertical", 24, 3, 27, 3),
    Sketcher.Constraint("Vertical", 23, 3, 28, 3),
    Sketcher.Constraint("Vertical", 22, 3, 29, 3),
    Sketcher.Constraint("Vertical", 21, 3, 30, 3),
    Sketcher.Constraint("Vertical", 20, 3, 31, 3),
    Sketcher.Constraint("Vertical", 36, 3, 37, 3),
    Sketcher.Constraint("Vertical", 35, 3, 38, 3),
    Sketcher.Constraint("Vertical", 34, 3, 39, 3),
    Sketcher.Constraint("Vertical", 33, 3, 40, 3),
    Sketcher.Constraint("Vertical", 32, 3, 41, 3),
    Sketcher.Constraint("Vertical", 45, 3, 46, 3),
    Sketcher.Constraint("Vertical", 44, 3, 47, 3),
    Sketcher.Constraint("Vertical", 43, 3, 48, 3),
    Sketcher.Constraint("Vertical", 42, 3, 49, 3),
    Sketcher.Constraint("Vertical", 31, 3, 50, 3),
    Sketcher.Constraint("Vertical", 54, 3, 55, 3),
    Sketcher.Constraint("Vertical", 53, 3, 56, 3),
    Sketcher.Constraint("Vertical", 52, 3, 57, 3),
    Sketcher.Constraint("Vertical", 51, 3, 58, 3),
    Sketcher.Constraint("Diameter", 0, Q("3 mm")),
    Sketcher.Constraint("DistanceY", 3, 3, 7, 3, Q("13.2 mm")),
    Sketcher.Constraint("DistanceY", 2, 3, 19, 3, Q("13.2 mm")),
    Sketcher.Constraint("DistanceY", 0, 3, 1, 3, Q("5.28 mm")),
    Sketcher.Constraint("DistanceY", 0, 3, 2, 3, Q("2.64 mm")),
    Sketcher.Constraint("DistanceY", 3, 3, 2, 3, Q("5.28 mm")),
    Sketcher.Constraint("DistanceY", 4, 3, 0, 3, Q("5.28 mm")),
    Sketcher.Constraint("DistanceX", 7, 3, 8, 3, Q("5.28 mm")),
    Sketcher.Constraint("DistanceX", 0, 3, 10, 3, Q("10.56 mm")),
    Sketcher.Constraint("DistanceY", 13, 3, 4, 3, Q("5.28 mm")),
    Sketcher.Constraint("DistanceX", 14, 3, 13, 3, Q("5.28 mm")),
    Sketcher.Constraint("DistanceX", 16, 3, 0, 3, Q("10.56 mm")),
    Sketcher.Constraint("DistanceY", 19, 3, 20, 3, Q("5.28 mm")),
    Sketcher.Constraint("DistanceY", 31, 3, 13, 3, Q("10.56 mm")),
    Sketcher.Constraint("DistanceY", 9, 3, 44, 3, Q("2.64 mm")),
    Sketcher.Constraint("DistanceY", 47, 3, 11, 3, Q("2.64 mm")),
    Sketcher.Constraint("DistanceY", 50, 3, 13, 3, Q("5.28 mm")),
    Sketcher.Constraint("DistanceX", 9, 3, 24, 3, Q("10.066199 mm")),
    Sketcher.Constraint("DistanceX", 24, 3, 25, 3, Q("1.693601 mm")),
    Sketcher.Constraint("DistanceX", 35, 3, 15, 3, Q("10.066199 mm")),
    Sketcher.Constraint("DistanceX", 36, 3, 35, 3, Q("1.693601 mm")),
    Sketcher.Constraint("DistanceX", 19, 3, 42, 3, Q("5.417599 mm")),
    Sketcher.Constraint("DistanceX", 51, 3, 50, 3, Q("5.417599 mm")),
    Sketcher.Constraint("DistanceY", -1, 1, 0, 3, Q("14.618781 mm")),
    Sketcher.Constraint("DistanceX", -1, 1, 2, 3, Q("36.312491 mm")),
    Sketcher.Constraint("DistanceY", -1, 1, 8, 3, Q("23.76401 mm")),
    Sketcher.Constraint("DistanceX", -1, 1, 15, 3, Q("22.594648 mm")),
    Sketcher.Constraint("DistanceX", -1, 1, 21, 3, Q("37.690068 mm")),
    Sketcher.Constraint("DistanceX", -1, 1, 22, 3, Q("43.158211 mm")),
    Sketcher.Constraint("DistanceY", -1, 1, 23, 3, Q("28.44944 mm")),
    Sketcher.Constraint("DistanceY", -1, 1, 25, 3, Q("17.624471 mm")),
    Sketcher.Constraint("DistanceY", -1, 1, 26, 3, Q("11.613092 mm")),
    Sketcher.Constraint("DistanceY", 30, 3, -1, 1, Q("5.64571 mm")),
    Sketcher.Constraint("DistanceX", -1, 1, 44, 3, Q("45.457719 mm")),
    Sketcher.Constraint("DistanceX", -1, 1, 45, 3, Q("47.339231 mm")),
    Sketcher.Constraint("DistanceY", -1, 1, 45, 3, Q("17.369368 mm")),
    Sketcher.Constraint("DistanceY", 49, 3, -1, 1, Q("0.26595 mm")),
    Sketcher.Constraint("DistanceX", -1, 1, 52, 3, Q("21.558121 mm")),
    Sketcher.Constraint("DistanceX", -1, 1, 54, 3, Q("16.140522 mm")),
    Sketcher.Constraint("DistanceX", 5, 3, 3, 3, Q("9.145228 mm")),
    Sketcher.Constraint("DistanceX", 8, 3, 9, 3, Q("3.865228 mm")),
    Sketcher.Constraint("DistanceY", 12, 3, 11, 3, Q("3.865228 mm")),
    Sketcher.Constraint("DistanceX", 15, 3, 14, 3, Q("3.865228 mm")),
    Sketcher.Constraint("DistanceY", 21, 3, 20, 3, Q("0.855508 mm")),
    Sketcher.Constraint("DistanceX", 8, 3, 23, 3, Q("10.681431 mm")),
    Sketcher.Constraint("DistanceY", 24, 3, 22, 3, Q("8.99371 mm")),
    Sketcher.Constraint("DistanceY", 28, 3, 11, 3, Q("8.550659 mm")),
    Sketcher.Constraint("DistanceY", 29, 3, 27, 3, Q("8.99371 mm")),
    Sketcher.Constraint("DistanceX", 32, 3, 31, 3, Q("5.950192 mm")),
    Sketcher.Constraint("DistanceX", 34, 3, 14, 3, Q("10.681431 mm")),
    Sketcher.Constraint("DistanceY", 42, 3, 21, 3, Q("5.37976 mm")),
    Sketcher.Constraint("DistanceX", 43, 3, 22, 3, Q("1.236578 mm")),
    Sketcher.Constraint("DistanceY", 43, 3, 22, 3, Q("5.633131 mm")),
    Sketcher.Constraint("DistanceY", 29, 3, 48, 3, Q("5.633131 mm")),
    Sketcher.Constraint("DistanceX", 33, 3, 52, 3, Q("1.236578 mm")),
    Sketcher.Constraint("DistanceX", 34, 3, 53, 3, Q("2.243589 mm")),
    Sketcher.Constraint("DistanceY", -1, 1, 22, 3, Q("32.386056 mm")),
    Sketcher.Constraint("DistanceY", -1, 1, 27, 3, Q("5.845216 mm")),
    Sketcher.Constraint("DistanceY", -1, 1, 46, 3, Q("11.868194 mm")),
])
pocket4 = doc.addObject("PartDesign::Pocket", "Pocket003")
body.addObject(pocket4)
pocket4.Profile = sketch5
pocket4.Length = 0.5

sketch6 = doc.addObject("Sketcher::SketchObject", "Sketch005")
body.addObject(sketch6)
sketch6.AttachmentSupport = (doc.XY_Plane, [""])
sketch6.MapMode = "FlatFace"
sketch6.AttachmentOffset = App.Placement(V(0, 0, 33), App.Rotation())
sketch6.addGeometry([
    Part.Circle(V(31.739877, 14.618781, 0), V(0, 0, 1), 38.1),
    Part.Circle(V(31.739877, 14.618781, 0), V(0, 0, 1), 34.925),
], False)
sketch6.addConstraint([
    Sketcher.Constraint("Coincident", 1, 3, 0, 3),
    Sketcher.Constraint("Diameter", 0, Q("76.2 mm")),
    Sketcher.Constraint("Diameter", 1, Q("69.85 mm")),
    Sketcher.Constraint("DistanceY", -1, 1, 0, 3, Q("14.618781 mm")),
    Sketcher.Constraint("DistanceX", -1, 1, 0, 3, Q("31.739877 mm")),
])
pocket5 = doc.addObject("PartDesign::Pocket", "Pocket004")
body.addObject(pocket5)
pocket5.Profile = sketch6
pocket5.Length = 2
doc.recompute()

linearpattern = doc.addObject("PartDesign::LinearPattern", "LinearPattern")
body.addObject(linearpattern)
linearpattern.Originals = [pocket5]
linearpattern.Direction = (doc.Z_Axis, [""])
linearpattern.Mode = "offset"
linearpattern.Offset = 4
linearpattern.Occurrences = 7
linearpattern.Reversed = True
body.Tip = linearpattern

sketch7 = doc.addObject("Sketcher::SketchObject", "Sketch006")
body.addObject(sketch7)
sketch7.AttachmentSupport = (doc.XY_Plane, [""])
sketch7.MapMode = "FlatFace"
sketch7.addGeometry([
    Part.Circle(V(1.577377, 14.618781, 0), V(0, 0, 1), 2.5),
    Part.Circle(V(61.902377, 14.618781, 0), V(0, 0, 1), 2.5),
], False)
sketch7.addConstraint([
    Sketcher.Constraint("Equal", 0, 1),
    Sketcher.Constraint("Horizontal", 0, 3, 1, 3),
    Sketcher.Constraint("Diameter", 0, Q("5 mm")),
    Sketcher.Constraint("DistanceX", 0, 3, 1, 3, Q("60.325 mm")),
    Sketcher.Constraint("DistanceY", -1, 1, 0, 3, Q("14.618781 mm")),
    Sketcher.Constraint("DistanceX", -1, 1, 0, 3, Q("1.577377 mm")),
])
pocket6 = doc.addObject("PartDesign::Pocket", "Pocket005")
body.addObject(pocket6)
pocket6.Profile = sketch7
pocket6.Type = "ThroughAll"
pocket6.Reversed = True

doc.recompute()
